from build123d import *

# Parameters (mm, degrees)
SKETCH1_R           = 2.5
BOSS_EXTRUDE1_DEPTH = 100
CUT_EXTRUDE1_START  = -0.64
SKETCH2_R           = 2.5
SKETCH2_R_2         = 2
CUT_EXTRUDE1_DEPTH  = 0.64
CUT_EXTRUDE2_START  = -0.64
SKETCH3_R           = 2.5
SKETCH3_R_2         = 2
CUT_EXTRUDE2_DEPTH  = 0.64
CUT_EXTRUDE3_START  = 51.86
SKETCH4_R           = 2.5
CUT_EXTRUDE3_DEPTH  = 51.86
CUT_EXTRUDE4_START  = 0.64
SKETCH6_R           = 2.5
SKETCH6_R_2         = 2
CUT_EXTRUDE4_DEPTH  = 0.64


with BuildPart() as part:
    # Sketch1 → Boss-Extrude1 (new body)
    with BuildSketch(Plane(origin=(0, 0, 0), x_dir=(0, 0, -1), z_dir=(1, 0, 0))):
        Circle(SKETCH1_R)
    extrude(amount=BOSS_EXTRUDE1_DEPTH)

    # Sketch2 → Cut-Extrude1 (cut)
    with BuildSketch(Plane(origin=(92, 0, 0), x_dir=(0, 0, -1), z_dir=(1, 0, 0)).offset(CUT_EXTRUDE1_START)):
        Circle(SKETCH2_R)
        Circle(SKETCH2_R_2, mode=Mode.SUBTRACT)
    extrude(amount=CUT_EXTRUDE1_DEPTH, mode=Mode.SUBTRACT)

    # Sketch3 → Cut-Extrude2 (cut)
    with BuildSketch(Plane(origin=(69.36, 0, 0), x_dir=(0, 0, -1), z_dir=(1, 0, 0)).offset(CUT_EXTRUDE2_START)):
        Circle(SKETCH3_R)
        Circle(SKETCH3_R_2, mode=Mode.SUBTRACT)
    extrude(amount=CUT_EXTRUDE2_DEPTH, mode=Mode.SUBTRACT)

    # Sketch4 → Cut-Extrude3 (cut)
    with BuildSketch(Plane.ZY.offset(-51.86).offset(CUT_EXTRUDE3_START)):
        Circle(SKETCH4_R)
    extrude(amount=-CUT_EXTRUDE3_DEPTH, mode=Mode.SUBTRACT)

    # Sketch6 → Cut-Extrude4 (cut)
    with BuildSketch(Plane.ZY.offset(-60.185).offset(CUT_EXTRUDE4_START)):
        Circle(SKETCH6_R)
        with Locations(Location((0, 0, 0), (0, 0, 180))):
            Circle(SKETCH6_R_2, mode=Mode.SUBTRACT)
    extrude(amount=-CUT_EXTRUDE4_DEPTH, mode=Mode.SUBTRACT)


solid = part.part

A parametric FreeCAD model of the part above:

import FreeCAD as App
import Part
import Sketcher
from FreeCAD import Vector
Q = App.Units.Quantity

doc = App.newDocument("Part")
body = doc.addObject("PartDesign::Body", "Body")

sketch1 = doc.addObject("Sketcher::SketchObject", "Sketch")
body.addObject(sketch1)
sketch1.AttachmentSupport = (doc.YZ_Plane, [""])
sketch1.MapMode = "FlatFace"
sketch1.addGeometry(Part.Circle(Vector(0, 0, 0), Vector(0, 0, 1), 2.5), False)
sketch1.addConstraint([
    Sketcher.Constraint("Coincident", 0, 3, -1, 1),
    Sketcher.Constraint("Diameter", 0, Q("5 mm")),
])
pad1 = doc.addObject("PartDesign::Pad", "Pad")
body.addObject(pad1)
pad1.Profile = sketch1
pad1.Length = 100

sketch2 = doc.addObject("Sketcher::SketchObject", "Sketch001")
body.addObject(sketch2)
sketch2.AttachmentSupport = (doc.YZ_Plane, [""])
sketch2.MapMode = "FlatFace"
sketch2.AttachmentOffset = App.Placement(Vector(0, 0, 91.36), App.Rotation())
sketch2.addGeometry([
    Part.Circle(Vector(0, 0, 0), Vector(0, 0, 1), 2.5),
    Part.Circle(Vector(0, 0, 0), Vector(0, 0, 1), 2),
], False)
sketch2.addConstraint([
    Sketcher.Constraint("Coincident", 0, 3, -1, 1),
    Sketcher.Constraint("Coincident", 1, 3, -1, 1),
    Sketcher.Constraint("Diameter", 0, Q("5 mm")),
    Sketcher.Constraint("Diameter", 1, Q("4 mm")),
])
pocket1 = doc.addObject("PartDesign::Pocket", "Pocket")
body.addObject(pocket1)
pocket1.Profile = sketch2
pocket1.Length = 0.64
pocket1.Reversed = True

sketch3 = doc.addObject("Sketcher::SketchObject", "Sketch002")
body.addObject(sketch3)
sketch3.AttachmentSupport = (doc.YZ_Plane, [""])
sketch3.MapMode = "FlatFace"
sketch3.AttachmentOffset = App.Placement(Vector(0, 0, 68.72), App.Rotation())
sketch3.addGeometry([
    Part.Circle(Vector(0, 0, 0), Vector(0, 0, 1), 2.5),
    Part.Circle(Vector(0, 0, 0), Vector(0, 0, 1), 2),
], False)
sketch3.addConstraint([
    Sketcher.Constraint("Coincident", 0, 3, -1, 1),
    Sketcher.Constraint("Coincident", 1, 3, -1, 1),
    Sketcher.Constraint("Diameter", 0, Q("5 mm")),
    Sketcher.Constraint("Diameter", 1, Q("4 mm")),
])
pocket2 = doc.addObject("PartDesign::Pocket", "Pocket001")
body.addObject(pocket2)
pocket2.Profile = sketch3
pocket2.Length = 0.64
pocket2.Reversed = True

sketch4 = doc.addObject("Sketcher::SketchObject", "Sketch003")
body.addObject(sketch4)
sketch4.AttachmentSupport = (doc.YZ_Plane, [""])
sketch4.MapMode = "FlatFace"
sketch4.addGeometry(Part.Circle(Vector(0, 0, 0), Vector(0, 0, 1), 2.5), False)
sketch4.addConstraint([
    Sketcher.Constraint("Coincident", 0, 3, -1, 1),
    Sketcher.Constraint("Diameter", 0, Q("5 mm")),
])
pocket3 = doc.addObject("PartDesign::Pocket", "Pocket002")
body.addObject(pocket3)
pocket3.Profile = sketch4
pocket3.Length = 51.86
pocket3.Reversed = True

sketch5 = doc.addObject("Sketcher::SketchObject", "Sketch004")
body.addObject(sketch5)
sketch5.AttachmentSupport = (doc.YZ_Plane, [""])
sketch5.MapMode = "FlatFace"
sketch5.AttachmentOffset = App.Placement(Vector(0, 0, 59.545), App.Rotation())
sketch5.addGeometry([
    Part.Circle(Vector(0, 0, 0), Vector(0, 0, 1), 2.5),
    Part.Circle(Vector(0, 0, 0), Vector(0, 0, 1), 2),
], False)
sketch5.addConstraint([
    Sketcher.Constraint("Coincident", 0, 3, -1, 1),
    Sketcher.Constraint("Coincident", 1, 3, -1, 1),
    Sketcher.Constraint("Diameter", 0, Q("5 mm")),
    Sketcher.Constraint("Diameter", 1, Q("4 mm")),
])
pocket4 = doc.addObject("PartDesign::Pocket", "Pocket003")
body.addObject(pocket4)
pocket4.Profile = sketch5
pocket4.Length = 0.64
pocket4.Reversed = True

doc.recompute()
